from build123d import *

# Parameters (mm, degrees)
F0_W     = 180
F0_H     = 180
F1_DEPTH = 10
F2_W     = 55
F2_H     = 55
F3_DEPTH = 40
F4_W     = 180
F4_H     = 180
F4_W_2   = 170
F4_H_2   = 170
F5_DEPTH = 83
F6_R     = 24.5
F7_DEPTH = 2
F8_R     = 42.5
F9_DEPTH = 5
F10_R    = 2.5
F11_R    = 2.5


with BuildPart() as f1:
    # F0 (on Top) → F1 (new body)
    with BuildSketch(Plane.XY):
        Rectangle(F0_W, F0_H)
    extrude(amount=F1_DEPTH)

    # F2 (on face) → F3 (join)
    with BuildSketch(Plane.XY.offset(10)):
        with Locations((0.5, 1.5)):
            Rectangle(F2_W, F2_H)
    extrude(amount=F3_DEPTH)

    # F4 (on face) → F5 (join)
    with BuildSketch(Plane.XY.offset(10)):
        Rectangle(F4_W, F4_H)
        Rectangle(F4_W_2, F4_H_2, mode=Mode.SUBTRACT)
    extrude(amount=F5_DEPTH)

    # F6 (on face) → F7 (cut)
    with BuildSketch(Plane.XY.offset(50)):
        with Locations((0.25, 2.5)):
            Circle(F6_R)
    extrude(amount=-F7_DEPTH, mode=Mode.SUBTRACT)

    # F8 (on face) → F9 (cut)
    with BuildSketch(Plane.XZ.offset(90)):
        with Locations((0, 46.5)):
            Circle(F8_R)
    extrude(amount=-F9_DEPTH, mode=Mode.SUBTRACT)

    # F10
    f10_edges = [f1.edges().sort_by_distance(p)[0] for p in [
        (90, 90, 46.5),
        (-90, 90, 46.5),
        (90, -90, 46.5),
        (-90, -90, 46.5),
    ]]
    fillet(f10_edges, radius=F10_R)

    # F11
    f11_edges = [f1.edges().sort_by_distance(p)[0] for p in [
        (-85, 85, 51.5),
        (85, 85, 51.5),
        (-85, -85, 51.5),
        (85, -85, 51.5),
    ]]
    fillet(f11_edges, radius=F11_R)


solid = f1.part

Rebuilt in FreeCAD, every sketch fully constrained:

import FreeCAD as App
import Part
import Sketcher
from FreeCAD import Vector
Q = App.Units.Quantity


def edges_at(feature, points):
    """Names of the edges that pass closest to the given points."""
    edges = feature.Shape.Edges
    near = lambda p: min(range(len(edges)), key=lambda i: edges[i].distToShape(Part.Vertex(*p))[0])
    return sorted({f"Edge{near(p) + 1}" for p in points})

doc = App.newDocument("Part")
params = doc.addObject("Spreadsheet::Sheet", "Params")
for row, (alias, value) in enumerate([
    ("sketch1_width", "180 mm"),
    ("pad1_length", "10 mm"),
    ("sketch2_width", "55 mm"),
    ("pad2_length", "40 mm"),
    ("sketch3_width", "180 mm"),
    ("sketch3_width2", "170 mm"),
    ("pad3_length", "83 mm"),
    ("sketch4_diameter", "49 mm"),
    ("pocket1_length", "2 mm"),
    ("sketch5_diameter", "85 mm"),
    ("pocket2_length", "5 mm"),
    ("fillet_radius", "2.5 mm"),
    ("fillet2_radius", "2.5 mm"),
], start=1):
    params.set(f"A{row}", alias)
    params.set(f"B{row}", "=" + value)
    params.setAlias(f"B{row}", alias)

body = doc.addObject("PartDesign::Body", "Body")

sketch1 = body.newObject("Sketcher::SketchObject", "Sketch")
sketch1.AttachmentSupport = (doc.getObject("XY_Plane"), [""])
sketch1.MapMode = "FlatFace"
sketch1.addGeometry(Part.LineSegment(Vector(-90, 90, 0), Vector(-90, -90, 0)), False)
sketch1.addGeometry(Part.LineSegment(Vector(-90, -90, 0), Vector(90, -90, 0)), False)
sketch1.addGeometry(Part.LineSegment(Vector(90, -90, 0), Vector(90, 90, 0)), False)
sketch1.addGeometry(Part.LineSegment(Vector(90, 90, 0), Vector(-90, 90, 0)), False)
sketch1.addConstraint(Sketcher.Constraint("Coincident", 0, 2, 1, 1))
sketch1.addConstraint(Sketcher.Constraint("Coincident", 1, 2, 2, 1))
sketch1.addConstraint(Sketcher.Constraint("Coincident", 2, 2, 3, 1))
sketch1.addConstraint(Sketcher.Constraint("Coincident", 3, 2, 0, 1))
sketch1.addConstraint(Sketcher.Constraint("Vertical", 0))
sketch1.addConstraint(Sketcher.Constraint("Horizontal", 1))
sketch1.addConstraint(Sketcher.Constraint("Vertical", 2))
sketch1.addConstraint(Sketcher.Constraint("Horizontal", 3))
sketch1.addConstraint(Sketcher.Constraint("Symmetric", 0, 2, 2, 2, -1, 1))
sketch1.addConstraint(Sketcher.Constraint("Equal", 3, 0))
sketch1.addConstraint(Sketcher.Constraint("DistanceX", 1, 1, 1, 2, Q("180 mm")))
sketch1.setExpression("Constraints[10]", "Params.sketch1_width")
pad1 = body.newObject("PartDesign::Pad", "Pad")
pad1.Profile = sketch1
pad1.setExpression("Length", "Params.pad1_length")

sketch2 = body.newObject("Sketcher::SketchObject", "Sketch001")
sketch2.AttachmentSupport = (doc.getObject("XY_Plane"), [""])
sketch2.MapMode = "FlatFace"
sketch2.AttachmentOffset = App.Placement(Vector(0, 0, 10), App.Rotation())
sketch2.addGeometry(Part.LineSegment(Vector(-27, 29, 0), Vector(-27, -26, 0)), False)
sketch2.addGeometry(Part.LineSegment(Vector(-27, -26, 0), Vector(28, -26, 0)), False)
sketch2.addGeometry(Part.LineSegment(Vector(28, -26, 0), Vector(28, 29, 0)), False)
sketch2.addGeometry(Part.LineSegment(Vector(28, 29, 0), Vector(-27, 29, 0)), False)
sketch2.addConstraint(Sketcher.Constraint("Coincident", 0, 2, 1, 1))
sketch2.addConstraint(Sketcher.Constraint("Coincident", 1, 2, 2, 1))
sketch2.addConstraint(Sketcher.Constraint("Coincident", 2, 2, 3, 1))
sketch2.addConstraint(Sketcher.Constraint("Coincident", 3, 2, 0, 1))
sketch2.addConstraint(Sketcher.Constraint("Vertical", 0))
sketch2.addConstraint(Sketcher.Constraint("Horizontal", 1))
sketch2.addConstraint(Sketcher.Constraint("Vertical", 2))
sketch2.addConstraint(Sketcher.Constraint("Horizontal", 3))
sketch2.addConstraint(Sketcher.Constraint("Equal", 3, 0))
sketch2.addConstraint(Sketcher.Constraint("DistanceX", 1, 1, 1, 2, Q("55 mm")))
sketch2.addConstraint(Sketcher.Constraint("DistanceX", 0, 2, -1, 1, Q("27 mm")))
sketch2.addConstraint(Sketcher.Constraint("DistanceY", 0, 2, -1, 1, Q("26 mm")))
sketch2.setExpression("Constraints[9]", "Params.sketch2_width")
pad2 = body.newObject("PartDesign::Pad", "Pad001")
pad2.Profile = sketch2
pad2.setExpression("Length", "Params.pad2_length")

sketch3 = body.newObject("Sketcher::SketchObject", "Sketch002")
sketch3.AttachmentSupport = (doc.getObject("XY_Plane"), [""])
sketch3.MapMode = "FlatFace"
sketch3.AttachmentOffset = App.Placement(Vector(0, 0, 10), App.Rotation())
sketch3.addGeometry(Part.LineSegment(Vector(-90, 90, 0), Vector(-90, -90, 0)), False)
sketch3.addGeometry(Part.LineSegment(Vector(-90, -90, 0), Vector(90, -90, 0)), False)
sketch3.addGeometry(Part.LineSegment(Vector(90, -90, 0), Vector(90, 90, 0)), False)
sketch3.addGeometry(Part.LineSegment(Vector(90, 90, 0), Vector(-90, 90, 0)), False)
sketch3.addGeometry(Part.LineSegment(Vector(85, -85, 0), Vector(-85, -85, 0)), False)
sketch3.addGeometry(Part.LineSegment(Vector(-85, -85, 0), Vector(-85, 85, 0)), False)
sketch3.addGeometry(Part.LineSegment(Vector(-85, 85, 0), Vector(85, 85, 0)), False)
sketch3.addGeometry(Part.LineSegment(Vector(85, 85, 0), Vector(85, -85, 0)), False)
sketch3.addConstraint(Sketcher.Constraint("Coincident", 0, 2, 1, 1))
sketch3.addConstraint(Sketcher.Constraint("Coincident", 1, 2, 2, 1))
sketch3.addConstraint(Sketcher.Constraint("Coincident", 2, 2, 3, 1))
sketch3.addConstraint(Sketcher.Constraint("Coincident", 3, 2, 0, 1))
sketch3.addConstraint(Sketcher.Constraint("Coincident", 4, 2, 5, 1))
sketch3.addConstraint(Sketcher.Constraint("Coincident", 5, 2, 6, 1))
sketch3.addConstraint(Sketcher.Constraint("Coincident", 6, 2, 7, 1))
sketch3.addConstraint(Sketcher.Constraint("Coincident", 7, 2, 4, 1))
sketch3.addConstraint(Sketcher.Constraint("Vertical", 0))
sketch3.addConstraint(Sketcher.Constraint("Horizontal", 1))
sketch3.addConstraint(Sketcher.Constraint("Vertical", 2))
sketch3.addConstraint(Sketcher.Constraint("Horizontal", 3))
sketch3.addConstraint(Sketcher.Constraint("Horizontal", 4))
sketch3.addConstraint(Sketcher.Constraint("Vertical", 5))
sketch3.addConstraint(Sketcher.Constraint("Horizontal", 6))
sketch3.addConstraint(Sketcher.Constraint("Vertical", 7))
sketch3.addConstraint(Sketcher.Constraint("Symmetric", 0, 2, 2, 2, -1, 1))
sketch3.addConstraint(Sketcher.Constraint("Symmetric", 4, 2, 6, 2, -1, 1))
sketch3.addConstraint(Sketcher.Constraint("Equal", 3, 0))
sketch3.addConstraint(Sketcher.Constraint("Equal", 6, 5))
sketch3.addConstraint(Sketcher.Constraint("DistanceX", 1, 1, 1, 2, Q("180 mm")))
sketch3.addConstraint(Sketcher.Constraint("DistanceX", 4, 2, 4, 1, Q("170 mm")))
sketch3.setExpression("Constraints[20]", "Params.sketch3_width")
sketch3.setExpression("Constraints[21]", "Params.sketch3_width2")
pad3 = body.newObject("PartDesign::Pad", "Pad002")
pad3.Profile = sketch3
pad3.setExpression("Length", "Params.pad3_length")

sketch4 = body.newObject("Sketcher::SketchObject", "Sketch003")
sketch4.AttachmentSupport = (doc.getObject("XY_Plane"), [""])
sketch4.MapMode = "FlatFace"
sketch4.AttachmentOffset = App.Placement(Vector(0, 0, 50), App.Rotation())
sketch4.addGeometry(Part.Circle(Vector(0, 2, 0), Vector(0, 0, 1), 24), False)
sketch4.addConstraint(Sketcher.Constraint("Diameter", 0, Q("49 mm")))
sketch4.addConstraint(Sketcher.Constraint("DistanceY", -1, 1, 0, 3, Q("2.5 mm")))
sketch4.addConstraint(Sketcher.Constraint("DistanceX", -1, 1, 0, 3, Q("0.25 mm")))
sketch4.setExpression("Constraints[0]", "Params.sketch4_diameter")
pocket1 = body.newObject("PartDesign::Pocket", "Pocket")
pocket1.Profile = sketch4
pocket1.setExpression("Length", "Params.pocket1_length")

sketch5 = body.newObject("Sketcher::SketchObject", "Sketch004")
sketch5.AttachmentSupport = (doc.getObject("XZ_Plane"), [""])
sketch5.MapMode = "FlatFace"
sketch5.AttachmentOffset = App.Placement(Vector(0, 0, 90), App.Rotation())
sketch5.addGeometry(Part.Circle(Vector(0, 46, 0), Vector(0, 0, 1), 42), False)
sketch5.addConstraint(Sketcher.Constraint("PointOnObject", 0, 3, -2))
sketch5.addConstraint(Sketcher.Constraint("Diameter", 0, Q("85 mm")))
sketch5.addConstraint(Sketcher.Constraint("DistanceY", -1, 1, 0, 3, Q("46.5 mm")))
sketch5.setExpression("Constraints[1]", "Params.sketch5_diameter")
pocket2 = body.newObject("PartDesign::Pocket", "Pocket001")
pocket2.Profile = sketch5
pocket2.setExpression("Length", "Params.pocket2_length")
doc.recompute()

fillet = body.newObject("PartDesign::Fillet", "Fillet")
fillet.Base = (pocket2, edges_at(pocket2, [
    (90, 90, 46.5),
    (-90, 90, 46.5),
    (90, -90, 46.5),
    (-90, -90, 46.5),
]))
fillet.setExpression("Radius", "Params.fillet_radius")
doc.recompute()

fillet2 = body.newObject("PartDesign::Fillet", "Fillet001")
fillet2.Base = (fillet, edges_at(fillet, [
    (-85, 85, 51.5),
    (85, 85, 51.5),
    (-85, -85, 51.5),
    (85, -85, 51.5),
]))
fillet2.setExpression("Radius", "Params.fillet2_radius")

doc.recompute()
